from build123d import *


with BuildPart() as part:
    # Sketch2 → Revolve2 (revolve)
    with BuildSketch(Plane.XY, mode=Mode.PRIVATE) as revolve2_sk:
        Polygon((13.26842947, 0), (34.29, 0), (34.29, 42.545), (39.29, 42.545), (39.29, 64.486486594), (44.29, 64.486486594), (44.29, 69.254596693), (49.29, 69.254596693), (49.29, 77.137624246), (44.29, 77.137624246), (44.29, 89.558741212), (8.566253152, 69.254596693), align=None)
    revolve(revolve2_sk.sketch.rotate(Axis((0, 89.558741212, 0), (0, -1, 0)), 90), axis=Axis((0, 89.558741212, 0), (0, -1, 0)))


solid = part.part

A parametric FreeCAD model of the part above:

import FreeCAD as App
import Part
import Sketcher

doc = App.newDocument("Part")
body = doc.addObject("PartDesign::Body", "Body")

sketch1 = doc.addObject("Sketcher::SketchObject", "Sketch")
body.addObject(sketch1)
sketch1.AttachmentSupport = (doc.XY_Plane, [""])
sketch1.MapMode = "FlatFace"
sketch1.addGeometry([
    Part.LineSegment(App.Vector(13.3, 0, 0), App.Vector(34.3, 0, 0)),
    Part.LineSegment(App.Vector(34.3, 0, 0), App.Vector(34.3, 42.5, 0)),
    Part.LineSegment(App.Vector(34.3, 42.5, 0), App.Vector(39.3, 42.5, 0)),
    Part.LineSegment(App.Vector(39.3, 42.5, 0), App.Vector(39.3, 64.5, 0)),
    Part.LineSegment(App.Vector(39.3, 64.5, 0), App.Vector(44.3, 64.5, 0)),
    Part.LineSegment(App.Vector(44.3, 64.5, 0), App.Vector(44.3, 69.3, 0)),
    Part.LineSegment(App.Vector(44.3, 69.3, 0), App.Vector(49.3, 69.3, 0)),
    Part.LineSegment(App.Vector(49.3, 69.3, 0), App.Vector(49.3, 77.1, 0)),
    Part.LineSegment(App.Vector(49.3, 77.1, 0), App.Vector(44.3, 77.1, 0)),
    Part.LineSegment(App.Vector(44.3, 77.1, 0), App.Vector(44.3, 89.6, 0)),
    Part.LineSegment(App.Vector(44.3, 89.6, 0), App.Vector(8.6, 69.3, 0)),
    Part.LineSegment(App.Vector(8.6, 69.3, 0), App.Vector(13.3, 0, 0)),
], False)
sketch1.addConstraint([
    Sketcher.Constraint("Coincident", 0, 2, 1, 1),
    Sketcher.Constraint("Coincident", 1, 2, 2, 1),
    Sketcher.Constraint("Coincident", 2, 2, 3, 1),
    Sketcher.Constraint("Coincident", 3, 2, 4, 1),
    Sketcher.Constraint("Coincident", 4, 2, 5, 1),
    Sketcher.Constraint("Coincident", 5, 2, 6, 1),
    Sketcher.Constraint("Coincident", 6, 2, 7, 1),
    Sketcher.Constraint("Coincident", 7, 2, 8, 1),
    Sketcher.Constraint("Coincident", 8, 2, 9, 1),
    Sketcher.Constraint("Coincident", 9, 2, 10, 1),
    Sketcher.Constraint("Coincident", 10, 2, 11, 1),
    Sketcher.Constraint("Coincident", 11, 2, 0, 1),
    Sketcher.Constraint("Horizontal", 0),
    Sketcher.Constraint("Vertical", 1),
    Sketcher.Constraint("Horizontal", 2),
    Sketcher.Constraint("Vertical", 3),
    Sketcher.Constraint("Horizontal", 4),
    Sketcher.Constraint("Vertical", 5),
    Sketcher.Constraint("Horizontal", 6),
    Sketcher.Constraint("Vertical", 7),
    Sketcher.Constraint("Horizontal", 8),
    Sketcher.Constraint("Vertical", 9),
    Sketcher.Constraint("PointOnObject", 0, 2, -1),
    Sketcher.Constraint("Horizontal", 6, 2, 10, 2),
    Sketcher.Constraint("Vertical", 5, 2, 8, 2),
    Sketcher.Constraint("Equal", 2, 4),
    Sketcher.Constraint("Equal", 4, 6),
    Sketcher.Constraint("DistanceX", 2, 1, 2, 2, 5.0),
    Sketcher.Constraint("DistanceY", 1, 1, 1, 2, 42.545),
    Sketcher.Constraint("DistanceX", -1, 1, 0, 2, 34.29),
    Sketcher.Constraint("DistanceX", 0, 1, 0, 2, 21.021571),
    Sketcher.Constraint("DistanceY", 5, 1, 5, 2, 4.76811),
    Sketcher.Constraint("DistanceY", 3, 1, 3, 2, 21.941487),
    Sketcher.Constraint("DistanceY", 7, 1, 7, 2, 7.883028),
    Sketcher.Constraint("DistanceY", 9, 1, 9, 2, 12.421117),
    Sketcher.Constraint("Distance", 10, 41.090685),
])
revolution = doc.addObject("PartDesign::Revolution", "Revolution")
body.addObject(revolution)
revolution.Profile = sketch1
revolution.ReferenceAxis = (sketch1, ["V_Axis"])
revolution.Angle = 360

doc.recompute()
